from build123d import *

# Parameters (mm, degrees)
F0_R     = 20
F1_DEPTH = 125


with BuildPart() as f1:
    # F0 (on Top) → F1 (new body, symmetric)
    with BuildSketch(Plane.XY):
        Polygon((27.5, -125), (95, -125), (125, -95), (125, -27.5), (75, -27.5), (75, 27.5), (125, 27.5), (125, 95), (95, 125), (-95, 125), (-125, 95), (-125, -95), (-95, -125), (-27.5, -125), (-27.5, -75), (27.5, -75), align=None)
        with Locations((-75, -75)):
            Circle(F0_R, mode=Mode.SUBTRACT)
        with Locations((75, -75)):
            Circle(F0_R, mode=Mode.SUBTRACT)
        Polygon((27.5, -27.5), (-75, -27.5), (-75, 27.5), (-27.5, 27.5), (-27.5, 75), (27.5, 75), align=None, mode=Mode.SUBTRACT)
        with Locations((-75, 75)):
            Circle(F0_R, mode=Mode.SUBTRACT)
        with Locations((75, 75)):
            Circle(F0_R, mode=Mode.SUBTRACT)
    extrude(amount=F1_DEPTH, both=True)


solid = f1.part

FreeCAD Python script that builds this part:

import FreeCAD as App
import Part
import Sketcher


def add_polygon(sketch, points):
    """Adds a closed chain of lines whose ends are joined by coincident constraints."""
    first, n = sketch.GeometryCount, len(points)
    for a, b in zip(points, points[1:] + points[:1]):
        sketch.addGeometry(Part.LineSegment(App.Vector(*a, 0), App.Vector(*b, 0)), False)
    for i in range(n):
        sketch.addConstraint(Sketcher.Constraint("Coincident", first + i, 2, first + (i + 1) % n, 1))

doc = App.newDocument("Part")
body = doc.addObject("PartDesign::Body", "Body")

# Sketch on XY plane
sketch1 = doc.addObject("Sketcher::SketchObject", "Sketch")
body.addObject(sketch1)
sketch1.AttachmentSupport = (doc.XY_Plane, [""])
sketch1.MapMode = "FlatFace"
add_polygon(sketch1, [(27.5, -125), (95, -125), (125, -95), (125, -27.5), (75, -27.5), (75, 27.5), (125, 27.5), (125, 95), (95, 125), (-95, 125), (-125, 95), (-125, -95), (-95, -125), (-27.5, -125), (-27.5, -75), (27.5, -75)])  # lines 0-15
sketch1.addGeometry(Part.Circle(App.Vector(-75, -75, 0), App.Vector(0, 0, 1), 20), False)  # 16
sketch1.addGeometry(Part.Circle(App.Vector(75, -75, 0), App.Vector(0, 0, 1), 20), False)  # 17
add_polygon(sketch1, [(27.5, 75), (27.5, -27.5), (-75, -27.5), (-75, 27.5), (-27.5, 27.5), (-27.5, 75)])  # lines 18-23
sketch1.addGeometry(Part.Circle(App.Vector(-75, 75, 0), App.Vector(0, 0, 1), 20), False)  # 24
sketch1.addGeometry(Part.Circle(App.Vector(75, 75, 0), App.Vector(0, 0, 1), 20), False)  # 25
sketch1.addConstraint(Sketcher.Constraint("Horizontal", 0))
sketch1.addConstraint(Sketcher.Constraint("Vertical", 2))
sketch1.addConstraint(Sketcher.Constraint("Horizontal", 3))
sketch1.addConstraint(Sketcher.Constraint("Vertical", 4))
sketch1.addConstraint(Sketcher.Constraint("Horizontal", 5))
sketch1.addConstraint(Sketcher.Constraint("Vertical", 6))
sketch1.addConstraint(Sketcher.Constraint("Horizontal", 8))
sketch1.addConstraint(Sketcher.Constraint("Vertical", 10))
sketch1.addConstraint(Sketcher.Constraint("Horizontal", 12))
sketch1.addConstraint(Sketcher.Constraint("Vertical", 13))
sketch1.addConstraint(Sketcher.Constraint("Horizontal", 14))
sketch1.addConstraint(Sketcher.Constraint("Vertical", 15))
sketch1.addConstraint(Sketcher.Constraint("Vertical", 18))
sketch1.addConstraint(Sketcher.Constraint("Horizontal", 19))
sketch1.addConstraint(Sketcher.Constraint("Vertical", 20))
sketch1.addConstraint(Sketcher.Constraint("Horizontal", 21))
sketch1.addConstraint(Sketcher.Constraint("Vertical", 22))
sketch1.addConstraint(Sketcher.Constraint("Horizontal", 23))
sketch1.addConstraint(Sketcher.Constraint("Equal", 16, 17))
sketch1.addConstraint(Sketcher.Constraint("Equal", 17, 24))
sketch1.addConstraint(Sketcher.Constraint("Equal", 24, 25))
sketch1.addConstraint(Sketcher.Constraint("Symmetric", 17, 3, 24, 3, -1, 1))
sketch1.addConstraint(Sketcher.Constraint("Symmetric", 16, 3, 25, 3, -1, 1))
sketch1.addConstraint(Sketcher.Constraint("Symmetric", 0, 2, 8, 2, -1, 1))
sketch1.addConstraint(Sketcher.Constraint("Symmetric", 1, 2, 9, 2, -1, 1))
sketch1.addConstraint(Sketcher.Constraint("Symmetric", 6, 2, 10, 2, -1, 1))
sketch1.addConstraint(Sketcher.Constraint("Symmetric", 7, 2, 11, 2, -1, 1))
sketch1.addConstraint(Sketcher.Constraint("Symmetric", 4, 2, 19, 2, -1, 1))
sketch1.addConstraint(Sketcher.Constraint("Symmetric", 18, 2, 21, 2, -1, 1))
sketch1.addConstraint(Sketcher.Constraint("Symmetric", 14, 2, 22, 2, -1, 1))
sketch1.addConstraint(Sketcher.Constraint("Symmetric", 16, 3, 17, 3, -2))
sketch1.addConstraint(Sketcher.Constraint("Perpendicular", 1, 7))
sketch1.addConstraint(Sketcher.Constraint("Horizontal", 6, 2, 9, 2))
sketch1.addConstraint(Sketcher.Constraint("Horizontal", 17, 3, 13, 2))
sketch1.addConstraint(Sketcher.Constraint("Horizontal", 3, 2, 18, 2))
sketch1.addConstraint(Sketcher.Constraint("Vertical", 25, 3, 3, 2))
sketch1.addConstraint(Sketcher.Constraint("Vertical", 0, 2, 7, 2))
sketch1.addConstraint(Sketcher.Constraint("Vertical", 13, 2, 21, 2))
sketch1.addConstraint(Sketcher.Constraint("Equal", 12, 2))
sketch1.addConstraint(Sketcher.Constraint("Equal", 23, 4))
sketch1.addConstraint(Sketcher.Constraint("Equal", 5, 13))
sketch1.addConstraint(Sketcher.Constraint("Diameter", 16, 40.0))
sketch1.addConstraint(Sketcher.Constraint("DistanceX", 3, 2, 3, 1, 50.0))
sketch1.addConstraint(Sketcher.Constraint("DistanceX", 8, 2, 8, 1, 190.0))
sketch1.addConstraint(Sketcher.Constraint("DistanceX", 14, 1, 14, 2, 55.0))
sketch1.addConstraint(Sketcher.Constraint("DistanceX", 19, 2, 19, 1, 102.5))
pad1 = doc.addObject("PartDesign::Pad", "Pad")
body.addObject(pad1)
pad1.Profile = sketch1
pad1.Length = 250
pad1.Midplane = True

doc.recompute()
